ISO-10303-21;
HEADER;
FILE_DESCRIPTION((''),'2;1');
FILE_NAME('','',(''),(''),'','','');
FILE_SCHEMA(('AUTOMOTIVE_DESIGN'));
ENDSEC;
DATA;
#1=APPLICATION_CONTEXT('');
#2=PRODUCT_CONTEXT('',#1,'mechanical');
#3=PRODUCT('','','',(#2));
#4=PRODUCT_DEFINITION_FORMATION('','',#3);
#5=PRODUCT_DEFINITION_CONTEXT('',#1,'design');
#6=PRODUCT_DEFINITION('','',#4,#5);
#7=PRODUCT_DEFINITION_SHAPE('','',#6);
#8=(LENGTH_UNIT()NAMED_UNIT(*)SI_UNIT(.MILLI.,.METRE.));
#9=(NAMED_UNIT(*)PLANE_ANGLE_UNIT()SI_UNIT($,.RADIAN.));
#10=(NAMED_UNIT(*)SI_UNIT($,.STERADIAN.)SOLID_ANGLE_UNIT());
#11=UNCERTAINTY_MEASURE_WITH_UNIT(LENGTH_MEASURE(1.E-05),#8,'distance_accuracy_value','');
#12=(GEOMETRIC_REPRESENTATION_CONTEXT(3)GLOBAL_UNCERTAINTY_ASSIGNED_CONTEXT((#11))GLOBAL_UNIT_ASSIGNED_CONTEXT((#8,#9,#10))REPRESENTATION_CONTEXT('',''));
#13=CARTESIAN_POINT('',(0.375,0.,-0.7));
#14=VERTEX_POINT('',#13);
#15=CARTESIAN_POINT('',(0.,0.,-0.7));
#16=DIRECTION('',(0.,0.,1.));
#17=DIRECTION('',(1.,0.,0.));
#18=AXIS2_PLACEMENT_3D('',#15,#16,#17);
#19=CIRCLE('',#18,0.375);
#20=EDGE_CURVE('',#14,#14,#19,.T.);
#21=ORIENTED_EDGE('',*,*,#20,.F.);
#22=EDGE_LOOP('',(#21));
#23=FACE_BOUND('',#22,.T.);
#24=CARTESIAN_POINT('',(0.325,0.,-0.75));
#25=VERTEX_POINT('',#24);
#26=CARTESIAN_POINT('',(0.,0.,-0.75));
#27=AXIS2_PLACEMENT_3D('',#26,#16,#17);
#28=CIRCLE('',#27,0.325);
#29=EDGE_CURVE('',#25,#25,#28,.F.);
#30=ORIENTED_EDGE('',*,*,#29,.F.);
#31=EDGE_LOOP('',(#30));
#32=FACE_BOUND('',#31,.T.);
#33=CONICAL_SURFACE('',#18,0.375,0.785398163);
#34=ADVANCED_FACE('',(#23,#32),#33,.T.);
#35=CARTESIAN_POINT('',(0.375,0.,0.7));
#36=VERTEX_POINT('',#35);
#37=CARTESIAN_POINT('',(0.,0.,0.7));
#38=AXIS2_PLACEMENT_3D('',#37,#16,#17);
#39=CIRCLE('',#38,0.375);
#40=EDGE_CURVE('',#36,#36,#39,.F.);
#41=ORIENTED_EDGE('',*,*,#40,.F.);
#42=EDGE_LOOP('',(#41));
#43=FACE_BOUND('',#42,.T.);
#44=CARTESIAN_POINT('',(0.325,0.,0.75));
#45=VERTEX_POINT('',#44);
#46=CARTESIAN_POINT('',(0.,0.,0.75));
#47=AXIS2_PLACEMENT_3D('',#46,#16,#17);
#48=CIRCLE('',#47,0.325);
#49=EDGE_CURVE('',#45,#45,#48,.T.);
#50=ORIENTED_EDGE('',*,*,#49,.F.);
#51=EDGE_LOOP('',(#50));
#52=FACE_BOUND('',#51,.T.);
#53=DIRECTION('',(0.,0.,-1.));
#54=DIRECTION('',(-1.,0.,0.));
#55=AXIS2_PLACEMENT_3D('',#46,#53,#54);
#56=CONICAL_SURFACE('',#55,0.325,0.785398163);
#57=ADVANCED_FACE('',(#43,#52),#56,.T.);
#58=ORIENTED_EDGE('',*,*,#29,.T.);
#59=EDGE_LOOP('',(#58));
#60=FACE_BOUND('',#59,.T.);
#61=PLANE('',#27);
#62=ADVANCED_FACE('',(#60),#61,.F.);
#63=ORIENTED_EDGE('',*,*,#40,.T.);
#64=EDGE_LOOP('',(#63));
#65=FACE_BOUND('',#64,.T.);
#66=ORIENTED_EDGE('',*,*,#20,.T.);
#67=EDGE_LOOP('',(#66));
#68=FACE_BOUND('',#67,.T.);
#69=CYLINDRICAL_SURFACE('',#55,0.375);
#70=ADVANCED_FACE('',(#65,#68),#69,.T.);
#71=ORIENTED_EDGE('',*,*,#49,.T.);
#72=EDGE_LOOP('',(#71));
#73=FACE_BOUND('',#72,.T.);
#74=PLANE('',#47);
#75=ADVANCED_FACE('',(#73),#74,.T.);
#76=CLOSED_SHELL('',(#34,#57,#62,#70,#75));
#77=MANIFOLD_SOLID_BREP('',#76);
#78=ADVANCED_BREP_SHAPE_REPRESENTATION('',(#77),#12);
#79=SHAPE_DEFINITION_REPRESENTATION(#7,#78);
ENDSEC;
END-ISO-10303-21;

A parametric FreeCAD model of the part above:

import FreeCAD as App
import Part
import Sketcher

V = App.Vector
Q = App.Units.Quantity


def edges_at(feature, points):
    """Names of the edges that pass closest to the given points."""
    edges = feature.Shape.Edges
    near = lambda p: min(range(len(edges)), key=lambda i: edges[i].distToShape(Part.Vertex(*p))[0])
    return sorted({f"Edge{near(p) + 1}" for p in points})

doc = App.newDocument("Part")
body = doc.addObject("PartDesign::Body", "Body")

# Sketch on XY plane
sketch1 = doc.addObject("Sketcher::SketchObject", "Sketch")
body.addObject(sketch1)
sketch1.AttachmentSupport = (doc.XY_Plane, [""])
sketch1.MapMode = "FlatFace"
sketch1.addGeometry(Part.Circle(V(0, 0, 0), V(0, 0, 1), 0.38), False)
sketch1.addConstraint([
    Sketcher.Constraint("Coincident", 0, 3, -1, 1),
    Sketcher.Constraint("Diameter", 0, Q("0.75 mm")),
])
pad1 = doc.addObject("PartDesign::Pad", "Pad")
body.addObject(pad1)
pad1.Profile = sketch1
pad1.Length = 1.5
pad1.Midplane = True
doc.recompute()

chamfer = doc.addObject("PartDesign::Chamfer", "Chamfer")
body.addObject(chamfer)
chamfer.Base = (pad1, edges_at(pad1, [(-0.375, 0, -0.75), (-0.375, 0, 0.75)]))
chamfer.Size = 0.05

doc.recompute()
